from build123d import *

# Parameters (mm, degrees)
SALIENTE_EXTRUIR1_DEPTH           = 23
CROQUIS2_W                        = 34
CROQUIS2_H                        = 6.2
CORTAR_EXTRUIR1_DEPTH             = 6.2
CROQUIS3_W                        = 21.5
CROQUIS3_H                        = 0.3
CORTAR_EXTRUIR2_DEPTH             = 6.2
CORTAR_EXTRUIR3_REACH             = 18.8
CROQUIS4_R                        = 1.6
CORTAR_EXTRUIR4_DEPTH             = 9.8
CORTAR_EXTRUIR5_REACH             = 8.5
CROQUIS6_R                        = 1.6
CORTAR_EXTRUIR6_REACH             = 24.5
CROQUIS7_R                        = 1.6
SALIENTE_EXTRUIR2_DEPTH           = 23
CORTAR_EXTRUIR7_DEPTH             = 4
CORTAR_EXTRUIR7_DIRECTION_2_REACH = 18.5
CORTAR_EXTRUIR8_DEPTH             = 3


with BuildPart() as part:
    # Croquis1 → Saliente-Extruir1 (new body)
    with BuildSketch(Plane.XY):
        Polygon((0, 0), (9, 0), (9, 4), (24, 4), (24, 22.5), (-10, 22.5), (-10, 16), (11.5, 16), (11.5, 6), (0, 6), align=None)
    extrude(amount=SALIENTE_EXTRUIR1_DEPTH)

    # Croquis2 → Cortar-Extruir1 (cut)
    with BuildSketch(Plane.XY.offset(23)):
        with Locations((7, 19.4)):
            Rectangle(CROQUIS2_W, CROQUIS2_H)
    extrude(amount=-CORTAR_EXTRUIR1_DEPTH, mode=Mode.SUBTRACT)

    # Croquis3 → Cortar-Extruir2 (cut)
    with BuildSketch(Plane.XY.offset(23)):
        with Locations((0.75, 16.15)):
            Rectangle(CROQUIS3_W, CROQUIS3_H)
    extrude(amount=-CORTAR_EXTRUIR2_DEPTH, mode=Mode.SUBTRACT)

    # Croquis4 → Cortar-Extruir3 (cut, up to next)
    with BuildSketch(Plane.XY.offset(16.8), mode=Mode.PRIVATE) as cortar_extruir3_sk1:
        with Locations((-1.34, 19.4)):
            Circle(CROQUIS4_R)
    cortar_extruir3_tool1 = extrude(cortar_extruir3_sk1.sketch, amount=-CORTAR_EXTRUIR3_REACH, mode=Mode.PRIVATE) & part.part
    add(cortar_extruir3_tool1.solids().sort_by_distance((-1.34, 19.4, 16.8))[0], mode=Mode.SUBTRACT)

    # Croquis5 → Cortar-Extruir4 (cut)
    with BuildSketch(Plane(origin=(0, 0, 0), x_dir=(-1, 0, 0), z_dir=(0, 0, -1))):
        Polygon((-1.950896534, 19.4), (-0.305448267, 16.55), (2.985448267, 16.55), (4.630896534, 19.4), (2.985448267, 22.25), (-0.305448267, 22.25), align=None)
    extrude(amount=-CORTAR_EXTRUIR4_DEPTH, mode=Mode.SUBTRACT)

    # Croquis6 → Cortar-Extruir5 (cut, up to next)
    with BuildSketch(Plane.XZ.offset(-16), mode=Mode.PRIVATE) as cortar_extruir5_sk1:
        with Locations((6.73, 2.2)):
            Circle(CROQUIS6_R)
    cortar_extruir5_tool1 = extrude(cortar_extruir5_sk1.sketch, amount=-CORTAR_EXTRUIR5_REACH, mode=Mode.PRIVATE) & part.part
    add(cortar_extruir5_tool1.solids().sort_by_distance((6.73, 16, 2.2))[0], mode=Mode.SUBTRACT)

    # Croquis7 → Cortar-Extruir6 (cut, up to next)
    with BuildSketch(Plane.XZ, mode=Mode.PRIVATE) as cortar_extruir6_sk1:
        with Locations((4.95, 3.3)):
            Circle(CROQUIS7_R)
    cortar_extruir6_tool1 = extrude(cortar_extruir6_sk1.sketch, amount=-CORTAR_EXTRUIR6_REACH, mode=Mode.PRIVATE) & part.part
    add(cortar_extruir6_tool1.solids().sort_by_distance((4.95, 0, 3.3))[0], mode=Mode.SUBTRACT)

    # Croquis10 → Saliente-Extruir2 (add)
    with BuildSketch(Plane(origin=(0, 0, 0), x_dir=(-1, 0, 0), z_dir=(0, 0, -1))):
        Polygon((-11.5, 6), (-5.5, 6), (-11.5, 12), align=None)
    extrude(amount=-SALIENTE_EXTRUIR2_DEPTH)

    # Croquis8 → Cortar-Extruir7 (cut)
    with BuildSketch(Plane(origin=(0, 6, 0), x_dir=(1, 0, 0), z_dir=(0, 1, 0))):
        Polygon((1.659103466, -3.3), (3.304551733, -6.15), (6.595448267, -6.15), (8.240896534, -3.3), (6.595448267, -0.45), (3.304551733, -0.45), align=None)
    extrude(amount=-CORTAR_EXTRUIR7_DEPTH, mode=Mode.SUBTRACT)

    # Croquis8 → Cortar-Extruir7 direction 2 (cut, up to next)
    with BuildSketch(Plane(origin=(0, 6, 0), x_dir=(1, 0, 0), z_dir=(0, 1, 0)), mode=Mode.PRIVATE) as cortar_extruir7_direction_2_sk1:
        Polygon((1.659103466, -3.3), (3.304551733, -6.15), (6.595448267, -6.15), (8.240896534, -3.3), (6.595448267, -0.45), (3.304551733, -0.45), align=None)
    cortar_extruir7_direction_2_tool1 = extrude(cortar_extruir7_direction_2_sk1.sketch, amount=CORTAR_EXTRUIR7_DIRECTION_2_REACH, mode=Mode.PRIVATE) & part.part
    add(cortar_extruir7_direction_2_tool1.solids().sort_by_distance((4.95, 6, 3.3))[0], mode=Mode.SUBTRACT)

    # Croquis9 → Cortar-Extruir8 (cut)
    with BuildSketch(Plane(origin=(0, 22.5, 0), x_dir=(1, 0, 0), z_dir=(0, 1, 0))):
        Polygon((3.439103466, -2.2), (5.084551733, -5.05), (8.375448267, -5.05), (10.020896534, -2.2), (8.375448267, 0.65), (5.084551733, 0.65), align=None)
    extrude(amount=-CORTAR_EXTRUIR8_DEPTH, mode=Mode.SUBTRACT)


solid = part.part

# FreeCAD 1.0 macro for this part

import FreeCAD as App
import Part
import Sketcher

V = App.Vector
Q = App.Units.Quantity

doc = App.newDocument("Part")
body = doc.addObject("PartDesign::Body", "Body")

sketch1 = body.newObject("Sketcher::SketchObject", "Sketch")
sketch1.AttachmentSupport = (doc.getObject("XY_Plane"), [""])
sketch1.MapMode = "FlatFace"
sketch1.addGeometry([
    Part.LineSegment(V(0, 0, 0), V(9, 0, 0)),
    Part.LineSegment(V(9, 0, 0), V(9, 4, 0)),
    Part.LineSegment(V(9, 4, 0), V(24, 4, 0)),
    Part.LineSegment(V(24, 4, 0), V(24, 22.5, 0)),
    Part.LineSegment(V(24, 22.5, 0), V(-10, 22.5, 0)),
    Part.LineSegment(V(-10, 22.5, 0), V(-10, 16, 0)),
    Part.LineSegment(V(-10, 16, 0), V(11.5, 16, 0)),
    Part.LineSegment(V(11.5, 16, 0), V(11.5, 6, 0)),
    Part.LineSegment(V(11.5, 6, 0), V(0, 6, 0)),
    Part.LineSegment(V(0, 6, 0), V(0, 0, 0)),
], False)
sketch1.addConstraint([
    Sketcher.Constraint("Coincident", 0, 2, 1, 1),
    Sketcher.Constraint("Coincident", 1, 2, 2, 1),
    Sketcher.Constraint("Coincident", 2, 2, 3, 1),
    Sketcher.Constraint("Coincident", 3, 2, 4, 1),
    Sketcher.Constraint("Coincident", 4, 2, 5, 1),
    Sketcher.Constraint("Coincident", 5, 2, 6, 1),
    Sketcher.Constraint("Coincident", 6, 2, 7, 1),
    Sketcher.Constraint("Coincident", 7, 2, 8, 1),
    Sketcher.Constraint("Coincident", 8, 2, 9, 1),
    Sketcher.Constraint("Coincident", 9, 2, 0, 1),
    Sketcher.Constraint("Horizontal", 0),
    Sketcher.Constraint("Vertical", 1),
    Sketcher.Constraint("Horizontal", 2),
    Sketcher.Constraint("Vertical", 3),
    Sketcher.Constraint("Horizontal", 4),
    Sketcher.Constraint("Vertical", 5),
    Sketcher.Constraint("Horizontal", 6),
    Sketcher.Constraint("Vertical", 7),
    Sketcher.Constraint("Horizontal", 8),
    Sketcher.Constraint("Vertical", 9),
    Sketcher.Constraint("Coincident", 9, 2, -1, 1),
    Sketcher.Constraint("DistanceX", 0, 1, 0, 2, 9.0),
    Sketcher.Constraint("DistanceX", 2, 1, 2, 2, 15.0),
    Sketcher.Constraint("DistanceX", 4, 2, 4, 1, 34.0),
    Sketcher.Constraint("DistanceY", 1, 1, 1, 2, 4.0),
    Sketcher.Constraint("DistanceY", 7, 2, 7, 1, 10.0),
    Sketcher.Constraint("DistanceY", 9, 2, 9, 1, 6.0),
    Sketcher.Constraint("DistanceX", 6, 1, 6, 2, 21.5),
    Sketcher.Constraint("DistanceY", 3, 1, 3, 2, 18.5),
])
pad1 = body.newObject("PartDesign::Pad", "Pad")
pad1.Profile = sketch1
pad1.Length = 23

sketch2 = body.newObject("Sketcher::SketchObject", "Sketch001")
sketch2.AttachmentSupport = (doc.getObject("XY_Plane"), [""])
sketch2.MapMode = "FlatFace"
sketch2.AttachmentOffset = App.Placement(V(0, 0, 23), App.Rotation())
sketch2.addGeometry([
    Part.LineSegment(V(-10, 22, 0), V(-10, 16, 0)),
    Part.LineSegment(V(-10, 16, 0), V(24, 16, 0)),
    Part.LineSegment(V(24, 16, 0), V(24, 22, 0)),
    Part.LineSegment(V(24, 22, 0), V(-10, 22, 0)),
], False)
sketch2.addConstraint([
    Sketcher.Constraint("Coincident", 0, 2, 1, 1),
    Sketcher.Constraint("Coincident", 1, 2, 2, 1),
    Sketcher.Constraint("Coincident", 2, 2, 3, 1),
    Sketcher.Constraint("Coincident", 3, 2, 0, 1),
    Sketcher.Constraint("Vertical", 0),
    Sketcher.Constraint("Horizontal", 1),
    Sketcher.Constraint("Vertical", 2),
    Sketcher.Constraint("Horizontal", 3),
    Sketcher.Constraint("DistanceX", 1, 1, 1, 2, 34.0),
    Sketcher.Constraint("DistanceY", 0, 2, 0, 1, 6.2),
    Sketcher.Constraint("DistanceX", 0, 2, -1, 1, 10.0),
    Sketcher.Constraint("DistanceY", -1, 1, 0, 2, 16.3),
])
pocket1 = body.newObject("PartDesign::Pocket", "Pocket")
pocket1.Profile = sketch2
pocket1.Length = 6.2

sketch3 = body.newObject("Sketcher::SketchObject", "Sketch002")
sketch3.AttachmentSupport = (doc.getObject("XY_Plane"), [""])
sketch3.MapMode = "FlatFace"
sketch3.AttachmentOffset = App.Placement(V(0, 0, 23), App.Rotation())
sketch3.addGeometry([
    Part.LineSegment(V(-10, 16.3, 0), V(-10, 16, 0)),
    Part.LineSegment(V(-10, 16, 0), V(11.5, 16, 0)),
    Part.LineSegment(V(11.5, 16, 0), V(11.5, 16.3, 0)),
    Part.LineSegment(V(11.5, 16.3, 0), V(-10, 16.3, 0)),
], False)
sketch3.addConstraint([
    Sketcher.Constraint("Coincident", 0, 2, 1, 1),
    Sketcher.Constraint("Coincident", 1, 2, 2, 1),
    Sketcher.Constraint("Coincident", 2, 2, 3, 1),
    Sketcher.Constraint("Coincident", 3, 2, 0, 1),
    Sketcher.Constraint("Vertical", 0),
    Sketcher.Constraint("Horizontal", 1),
    Sketcher.Constraint("Vertical", 2),
    Sketcher.Constraint("Horizontal", 3),
    Sketcher.Constraint("DistanceX", 1, 1, 1, 2, 21.5),
    Sketcher.Constraint("DistanceY", 0, 2, 0, 1, 0.3),
    Sketcher.Constraint("DistanceX", 0, 2, -1, 1, 10.0),
    Sketcher.Constraint("DistanceY", -1, 1, 0, 2, 16.0),
])
pocket2 = body.newObject("PartDesign::Pocket", "Pocket001")
pocket2.Profile = sketch3
pocket2.Length = 6.2

sketch4 = body.newObject("Sketcher::SketchObject", "Sketch003")
sketch4.AttachmentSupport = (doc.getObject("XY_Plane"), [""])
sketch4.MapMode = "FlatFace"
sketch4.AttachmentOffset = App.Placement(V(0, 0, 16.8), App.Rotation())
sketch4.addGeometry(Part.Circle(V(-1.3, 19.4, 0), V(0, 0, 1), 1.6), False)
sketch4.addConstraint([
    Sketcher.Constraint("Diameter", 0, 3.2),
    Sketcher.Constraint("DistanceY", -1, 1, 0, 3, 19.4),
    Sketcher.Constraint("DistanceX", 0, 3, -1, 1, 1.34),
])
pocket3 = body.newObject("PartDesign::Pocket", "Pocket002")
pocket3.Profile = sketch4
pocket3.Type = "UpToFirst"

sketch5 = body.newObject("Sketcher::SketchObject", "Sketch004")
sketch5.AttachmentSupport = (doc.getObject("XY_Plane"), [""])
sketch5.MapMode = "FlatFace"
sketch5.addGeometry([
    Part.LineSegment(V(2, 19.4, 0), V(0.3, 16.6, 0)),
    Part.LineSegment(V(0.3, 16.6, 0), V(-3, 16.6, 0)),
    Part.LineSegment(V(-3, 16.6, 0), V(-4.6, 19.4, 0)),
    Part.LineSegment(V(-4.6, 19.4, 0), V(-3, 22.2, 0)),
    Part.LineSegment(V(-3, 22.2, 0), V(0.3, 22.2, 0)),
    Part.LineSegment(V(0.3, 22.2, 0), V(2, 19.4, 0)),
], False)
sketch5.addConstraint([
    Sketcher.Constraint("Coincident", 0, 2, 1, 1),
    Sketcher.Constraint("Coincident", 1, 2, 2, 1),
    Sketcher.Constraint("Coincident", 2, 2, 3, 1),
    Sketcher.Constraint("Coincident", 3, 2, 4, 1),
    Sketcher.Constraint("Coincident", 4, 2, 5, 1),
    Sketcher.Constraint("Coincident", 5, 2, 0, 1),
    Sketcher.Constraint("Horizontal", 1),
    Sketcher.Constraint("Horizontal", 4),
    Sketcher.Constraint("Parallel", 0, 3),
    Sketcher.Constraint("Parallel", 2, 5),
    Sketcher.Constraint("Horizontal", 2, 2, 5, 2),
    Sketcher.Constraint("Vertical", 1, 2, 3, 2),
    Sketcher.Constraint("Vertical", 0, 2, 4, 2),
    Sketcher.Constraint("Angle", 0, Q("-120 deg")),
    Sketcher.Constraint("DistanceY", -1, 1, 2, 2, 19.4),
    Sketcher.Constraint("DistanceY", 1, 2, 3, 2, 5.7),
    Sketcher.Constraint("DistanceX", 1, 2, 1, 1, 3.290897),
    Sketcher.Constraint("DistanceX", -1, 1, 0, 2, 0.305448),
])
pocket4 = body.newObject("PartDesign::Pocket", "Pocket003")
pocket4.Profile = sketch5
pocket4.Length = 9.8
pocket4.Reversed = True

sketch6 = body.newObject("Sketcher::SketchObject", "Sketch005")
sketch6.AttachmentSupport = (doc.getObject("XZ_Plane"), [""])
sketch6.MapMode = "FlatFace"
sketch6.AttachmentOffset = App.Placement(V(0, 0, -16), App.Rotation())
sketch6.addGeometry(Part.Circle(V(6.7, 2.2, 0), V(0, 0, 1), 1.6), False)
sketch6.addConstraint([
    Sketcher.Constraint("Diameter", 0, 3.2),
    Sketcher.Constraint("DistanceY", -1, 1, 0, 3, 2.2),
    Sketcher.Constraint("DistanceX", -1, 1, 0, 3, 6.73),
])
pocket5 = body.newObject("PartDesign::Pocket", "Pocket004")
pocket5.Profile = sketch6
pocket5.Type = "UpToFirst"

sketch7 = body.newObject("Sketcher::SketchObject", "Sketch006")
sketch7.AttachmentSupport = (doc.getObject("XZ_Plane"), [""])
sketch7.MapMode = "FlatFace"
sketch7.addGeometry(Part.Circle(V(5, 3.3, 0), V(0, 0, 1), 1.6), False)
sketch7.addConstraint([
    Sketcher.Constraint("Diameter", 0, 3.2),
    Sketcher.Constraint("DistanceY", -1, 1, 0, 3, 3.3),
    Sketcher.Constraint("DistanceX", -1, 1, 0, 3, 4.95),
])
pocket6 = body.newObject("PartDesign::Pocket", "Pocket005")
pocket6.Profile = sketch7
pocket6.Type = "UpToFirst"

sketch8 = body.newObject("Sketcher::SketchObject", "Sketch007")
sketch8.AttachmentSupport = (doc.getObject("XY_Plane"), [""])
sketch8.MapMode = "FlatFace"
sketch8.addGeometry([
    Part.LineSegment(V(12, 6, 0), V(6, 6, 0)),
    Part.LineSegment(V(6, 6, 0), V(12, 12, 0)),
    Part.LineSegment(V(12, 12, 0), V(12, 6, 0)),
], False)
sketch8.addConstraint([
    Sketcher.Constraint("Coincident", 0, 2, 1, 1),
    Sketcher.Constraint("Coincident", 1, 2, 2, 1),
    Sketcher.Constraint("Coincident", 2, 2, 0, 1),
    Sketcher.Constraint("Horizontal", 0),
    Sketcher.Constraint("Vertical", 2),
    Sketcher.Constraint("Equal", 0, 2),
    Sketcher.Constraint("DistanceX", 0, 2, 0, 1, 6.0),
    Sketcher.Constraint("DistanceY", -1, 1, 0, 2, 6.0),
    Sketcher.Constraint("DistanceX", -1, 1, 0, 2, 5.5),
])
pad2 = body.newObject("PartDesign::Pad", "Pad001")
pad2.Profile = sketch8
pad2.Length = 23

sketch9 = body.newObject("Sketcher::SketchObject", "Sketch008")
sketch9.AttachmentSupport = (doc.getObject("XZ_Plane"), [""])
sketch9.MapMode = "FlatFace"
sketch9.AttachmentOffset = App.Placement(V(0, 0, -6), App.Rotation())
sketch9.addGeometry([
    Part.LineSegment(V(1.7, 3.3, 0), V(3.3, 6.2, 0)),
    Part.LineSegment(V(3.3, 6.2, 0), V(6.6, 6.2, 0)),
    Part.LineSegment(V(6.6, 6.2, 0), V(8.2, 3.3, 0)),
    Part.LineSegment(V(8.2, 3.3, 0), V(6.6, 0.5, 0)),
    Part.LineSegment(V(6.6, 0.5, 0), V(3.3, 0.5, 0)),
    Part.LineSegment(V(3.3, 0.5, 0), V(1.7, 3.3, 0)),
], False)
sketch9.addConstraint([
    Sketcher.Constraint("Coincident", 0, 2, 1, 1),
    Sketcher.Constraint("Coincident", 1, 2, 2, 1),
    Sketcher.Constraint("Coincident", 2, 2, 3, 1),
    Sketcher.Constraint("Coincident", 3, 2, 4, 1),
    Sketcher.Constraint("Coincident", 4, 2, 5, 1),
    Sketcher.Constraint("Coincident", 5, 2, 0, 1),
    Sketcher.Constraint("Horizontal", 1),
    Sketcher.Constraint("Horizontal", 4),
    Sketcher.Constraint("Parallel", 0, 3),
    Sketcher.Constraint("Parallel", 2, 5),
    Sketcher.Constraint("Horizontal", 2, 2, 5, 2),
    Sketcher.Constraint("Vertical", 1, 2, 3, 2),
    Sketcher.Constraint("Vertical", 0, 2, 4, 2),
    Sketcher.Constraint("Angle", 0, Q("60 deg")),
    Sketcher.Constraint("DistanceY", -1, 1, 2, 2, 3.3),
    Sketcher.Constraint("DistanceY", 3, 2, 1, 2, 5.7),
    Sketcher.Constraint("DistanceX", 1, 1, 1, 2, 3.290897),
    Sketcher.Constraint("DistanceX", -1, 1, 0, 2, 3.304552),
])
pocket7 = body.newObject("PartDesign::Pocket", "Pocket006")
pocket7.Profile = sketch9
pocket7.Length = 4
pocket7.Reversed = True

sketch10 = body.newObject("Sketcher::SketchObject", "Sketch009")
sketch10.AttachmentSupport = (doc.getObject("XZ_Plane"), [""])
sketch10.MapMode = "FlatFace"
sketch10.AttachmentOffset = App.Placement(V(0, 0, -6), App.Rotation())
sketch10.addGeometry([
    Part.LineSegment(V(1.7, 3.3, 0), V(3.3, 6.2, 0)),
    Part.LineSegment(V(3.3, 6.2, 0), V(6.6, 6.2, 0)),
    Part.LineSegment(V(6.6, 6.2, 0), V(8.2, 3.3, 0)),
    Part.LineSegment(V(8.2, 3.3, 0), V(6.6, 0.5, 0)),
    Part.LineSegment(V(6.6, 0.5, 0), V(3.3, 0.5, 0)),
    Part.LineSegment(V(3.3, 0.5, 0), V(1.7, 3.3, 0)),
], False)
sketch10.addConstraint([
    Sketcher.Constraint("Coincident", 0, 2, 1, 1),
    Sketcher.Constraint("Coincident", 1, 2, 2, 1),
    Sketcher.Constraint("Coincident", 2, 2, 3, 1),
    Sketcher.Constraint("Coincident", 3, 2, 4, 1),
    Sketcher.Constraint("Coincident", 4, 2, 5, 1),
    Sketcher.Constraint("Coincident", 5, 2, 0, 1),
    Sketcher.Constraint("Horizontal", 1),
    Sketcher.Constraint("Horizontal", 4),
    Sketcher.Constraint("Parallel", 0, 3),
    Sketcher.Constraint("Parallel", 2, 5),
    Sketcher.Constraint("Horizontal", 2, 2, 5, 2),
    Sketcher.Constraint("Vertical", 1, 2, 3, 2),
    Sketcher.Constraint("Vertical", 0, 2, 4, 2),
    Sketcher.Constraint("Angle", 0, Q("60 deg")),
    Sketcher.Constraint("DistanceY", -1, 1, 2, 2, 3.3),
    Sketcher.Constraint("DistanceY", 3, 2, 1, 2, 5.7),
    Sketcher.Constraint("DistanceX", 1, 1, 1, 2, 3.290897),
    Sketcher.Constraint("DistanceX", -1, 1, 0, 2, 3.304552),
])
pocket8 = body.newObject("PartDesign::Pocket", "Pocket007")
pocket8.Profile = sketch10
pocket8.Type = "UpToFirst"

sketch11 = body.newObject("Sketcher::SketchObject", "Sketch010")
sketch11.AttachmentSupport = (doc.getObject("XZ_Plane"), [""])
sketch11.MapMode = "FlatFace"
sketch11.AttachmentOffset = App.Placement(V(0, 0, -22.5), App.Rotation())
sketch11.addGeometry([
    Part.LineSegment(V(3.4, 2.2, 0), V(5.1, 5, 0)),
    Part.LineSegment(V(5.1, 5, 0), V(8.4, 5, 0)),
    Part.LineSegment(V(8.4, 5, 0), V(10, 2.2, 0)),
    Part.LineSegment(V(10, 2.2, 0), V(8.4, -0.7, 0)),
    Part.LineSegment(V(8.4, -0.7, 0), V(5.1, -0.7, 0)),
    Part.LineSegment(V(5.1, -0.7, 0), V(3.4, 2.2, 0)),
], False)
sketch11.addConstraint([
    Sketcher.Constraint("Coincident", 0, 2, 1, 1),
    Sketcher.Constraint("Coincident", 1, 2, 2, 1),
    Sketcher.Constraint("Coincident", 2, 2, 3, 1),
    Sketcher.Constraint("Coincident", 3, 2, 4, 1),
    Sketcher.Constraint("Coincident", 4, 2, 5, 1),
    Sketcher.Constraint("Coincident", 5, 2, 0, 1),
    Sketcher.Constraint("Horizontal", 1),
    Sketcher.Constraint("Horizontal", 4),
    Sketcher.Constraint("Parallel", 0, 3),
    Sketcher.Constraint("Parallel", 2, 5),
    Sketcher.Constraint("Horizontal", 2, 2, 5, 2),
    Sketcher.Constraint("Vertical", 1, 2, 3, 2),
    Sketcher.Constraint("Vertical", 0, 2, 4, 2),
    Sketcher.Constraint("Angle", 0, Q("60 deg")),
    Sketcher.Constraint("DistanceY", -1, 1, 2, 2, 2.2),
    Sketcher.Constraint("DistanceY", 3, 2, 1, 2, 5.7),
    Sketcher.Constraint("DistanceX", 1, 1, 1, 2, 3.290897),
    Sketcher.Constraint("DistanceX", -1, 1, 0, 2, 5.084552),
])
pocket9 = body.newObject("PartDesign::Pocket", "Pocket008")
pocket9.Profile = sketch11
pocket9.Length = 3
pocket9.Reversed = True

doc.recompute()
